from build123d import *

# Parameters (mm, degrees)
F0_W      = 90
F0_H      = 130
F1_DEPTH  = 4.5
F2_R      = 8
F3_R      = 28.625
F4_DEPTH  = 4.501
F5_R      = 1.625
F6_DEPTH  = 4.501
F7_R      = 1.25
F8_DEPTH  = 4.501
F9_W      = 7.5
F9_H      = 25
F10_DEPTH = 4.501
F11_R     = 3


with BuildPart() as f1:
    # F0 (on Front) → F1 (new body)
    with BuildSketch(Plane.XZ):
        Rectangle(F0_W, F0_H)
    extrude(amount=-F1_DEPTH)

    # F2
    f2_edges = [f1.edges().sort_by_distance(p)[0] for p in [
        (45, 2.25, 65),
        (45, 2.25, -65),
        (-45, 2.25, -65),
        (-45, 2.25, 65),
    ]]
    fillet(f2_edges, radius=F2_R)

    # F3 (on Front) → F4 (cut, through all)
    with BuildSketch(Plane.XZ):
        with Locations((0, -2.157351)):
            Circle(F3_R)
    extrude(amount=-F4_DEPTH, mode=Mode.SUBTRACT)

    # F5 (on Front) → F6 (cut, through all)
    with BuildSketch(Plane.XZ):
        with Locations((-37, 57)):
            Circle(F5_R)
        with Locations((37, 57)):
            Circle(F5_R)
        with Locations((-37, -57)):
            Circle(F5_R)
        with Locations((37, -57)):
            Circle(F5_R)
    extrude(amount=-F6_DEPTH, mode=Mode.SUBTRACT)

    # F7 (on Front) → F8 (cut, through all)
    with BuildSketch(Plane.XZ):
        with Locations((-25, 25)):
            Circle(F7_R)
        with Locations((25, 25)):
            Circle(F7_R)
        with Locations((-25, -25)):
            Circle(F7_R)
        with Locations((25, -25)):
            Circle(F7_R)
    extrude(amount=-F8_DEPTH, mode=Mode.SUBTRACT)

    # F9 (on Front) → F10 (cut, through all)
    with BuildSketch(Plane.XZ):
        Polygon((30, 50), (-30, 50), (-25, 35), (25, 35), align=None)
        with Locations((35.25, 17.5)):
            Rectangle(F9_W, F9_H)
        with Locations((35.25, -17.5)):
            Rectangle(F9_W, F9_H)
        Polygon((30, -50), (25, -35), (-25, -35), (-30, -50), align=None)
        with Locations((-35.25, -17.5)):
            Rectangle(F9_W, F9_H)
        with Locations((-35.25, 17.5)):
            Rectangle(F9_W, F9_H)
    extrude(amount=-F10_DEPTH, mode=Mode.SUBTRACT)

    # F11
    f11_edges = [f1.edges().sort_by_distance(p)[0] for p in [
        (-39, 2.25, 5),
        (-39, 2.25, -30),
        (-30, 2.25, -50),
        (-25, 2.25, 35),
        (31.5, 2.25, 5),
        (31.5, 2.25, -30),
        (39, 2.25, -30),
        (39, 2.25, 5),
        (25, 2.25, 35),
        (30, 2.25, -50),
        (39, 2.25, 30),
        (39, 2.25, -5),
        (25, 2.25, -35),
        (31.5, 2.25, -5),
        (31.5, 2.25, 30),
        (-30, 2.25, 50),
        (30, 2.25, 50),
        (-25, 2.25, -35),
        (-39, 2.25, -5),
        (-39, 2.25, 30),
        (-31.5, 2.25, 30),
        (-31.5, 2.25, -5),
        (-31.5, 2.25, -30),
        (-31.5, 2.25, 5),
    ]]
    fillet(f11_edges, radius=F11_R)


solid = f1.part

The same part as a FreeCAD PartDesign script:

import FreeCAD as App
import Part
import Sketcher


def edges_at(feature, points):
    """Names of the edges that pass closest to the given points."""
    edges = feature.Shape.Edges
    near = lambda p: min(range(len(edges)), key=lambda i: edges[i].distToShape(Part.Vertex(*p))[0])
    return sorted({f"Edge{near(p) + 1}" for p in points})


def add_polygon(sketch, points):
    """Adds a closed chain of lines whose ends are joined by coincident constraints."""
    first, n = sketch.GeometryCount, len(points)
    for a, b in zip(points, points[1:] + points[:1]):
        sketch.addGeometry(Part.LineSegment(App.Vector(*a, 0), App.Vector(*b, 0)), False)
    for i in range(n):
        sketch.addConstraint(Sketcher.Constraint("Coincident", first + i, 2, first + (i + 1) % n, 1))

doc = App.newDocument("Part")
body = doc.addObject("PartDesign::Body", "Body")

# Sketch on XZ plane
sketch1 = body.newObject("Sketcher::SketchObject", "Sketch")
sketch1.AttachmentSupport = (doc.getObject("XZ_Plane"), [""])
sketch1.MapMode = "FlatFace"
add_polygon(sketch1, [(-45, 65), (-45, -65), (45, -65), (45, 65)])  # lines 0-3
sketch1.addConstraint(Sketcher.Constraint("Vertical", 0))
sketch1.addConstraint(Sketcher.Constraint("Horizontal", 1))
sketch1.addConstraint(Sketcher.Constraint("Vertical", 2))
sketch1.addConstraint(Sketcher.Constraint("Horizontal", 3))
sketch1.addConstraint(Sketcher.Constraint("Symmetric", 0, 2, 2, 2, -1, 1))
sketch1.addConstraint(Sketcher.Constraint("DistanceX", 1, 1, 1, 2, 90.0))
sketch1.addConstraint(Sketcher.Constraint("DistanceY", 0, 2, 0, 1, 130.0))
pad1 = body.newObject("PartDesign::Pad", "Pad")
pad1.Profile = sketch1
pad1.Length = 4.5
pad1.Reversed = True
doc.recompute()

fillet = body.newObject("PartDesign::Fillet", "Fillet")
fillet.Base = (pad1, edges_at(pad1, [
    (45, 2.25, 65),
    (45, 2.25, -65),
    (-45, 2.25, -65),
    (-45, 2.25, 65),
]))
fillet.Radius = 8

# Sketch on XZ plane
sketch2 = body.newObject("Sketcher::SketchObject", "Sketch001")
sketch2.AttachmentSupport = (doc.getObject("XZ_Plane"), [""])
sketch2.MapMode = "FlatFace"
sketch2.addGeometry(Part.Circle(App.Vector(0, -2, 0), App.Vector(0, 0, 1), 29), False)
sketch2.addConstraint(Sketcher.Constraint("PointOnObject", 0, 3, -2))
sketch2.addConstraint(Sketcher.Constraint("Diameter", 0, 57.25))
sketch2.addConstraint(Sketcher.Constraint("DistanceY", 0, 3, -1, 1, 2.157351))
pocket1 = body.newObject("PartDesign::Pocket", "Pocket")
pocket1.Profile = sketch2
pocket1.Type = "ThroughAll"

# Sketch on XZ plane
sketch3 = body.newObject("Sketcher::SketchObject", "Sketch002")
sketch3.AttachmentSupport = (doc.getObject("XZ_Plane"), [""])
sketch3.MapMode = "FlatFace"
sketch3.addGeometry(Part.Circle(App.Vector(-37, 57, 0), App.Vector(0, 0, 1), 1.6), False)
sketch3.addGeometry(Part.Circle(App.Vector(37, 57, 0), App.Vector(0, 0, 1), 1.6), False)
sketch3.addGeometry(Part.Circle(App.Vector(-37, -57, 0), App.Vector(0, 0, 1), 1.6), False)
sketch3.addGeometry(Part.Circle(App.Vector(37, -57, 0), App.Vector(0, 0, 1), 1.6), False)
sketch3.addConstraint(Sketcher.Constraint("Equal", 0, 1))
sketch3.addConstraint(Sketcher.Constraint("Equal", 1, 2))
sketch3.addConstraint(Sketcher.Constraint("Equal", 2, 3))
sketch3.addConstraint(Sketcher.Constraint("Symmetric", 1, 3, 2, 3, -1, 1))
sketch3.addConstraint(Sketcher.Constraint("Symmetric", 0, 3, 3, 3, -1, 1))
sketch3.addConstraint(Sketcher.Constraint("Symmetric", 0, 3, 1, 3, -2))
sketch3.addConstraint(Sketcher.Constraint("Diameter", 0, 3.25))
sketch3.addConstraint(Sketcher.Constraint("DistanceX", 0, 3, -1, 1, 37.0))
sketch3.addConstraint(Sketcher.Constraint("DistanceY", -1, 1, 0, 3, 57.0))
pocket2 = body.newObject("PartDesign::Pocket", "Pocket001")
pocket2.Profile = sketch3
pocket2.Type = "ThroughAll"

# Sketch on XZ plane
sketch4 = body.newObject("Sketcher::SketchObject", "Sketch003")
sketch4.AttachmentSupport = (doc.getObject("XZ_Plane"), [""])
sketch4.MapMode = "FlatFace"
sketch4.addGeometry(Part.Circle(App.Vector(-25, 25, 0), App.Vector(0, 0, 1), 1.2), False)
sketch4.addGeometry(Part.Circle(App.Vector(25, 25, 0), App.Vector(0, 0, 1), 1.2), False)
sketch4.addGeometry(Part.Circle(App.Vector(-25, -25, 0), App.Vector(0, 0, 1), 1.2), False)
sketch4.addGeometry(Part.Circle(App.Vector(25, -25, 0), App.Vector(0, 0, 1), 1.2), False)
sketch4.addConstraint(Sketcher.Constraint("Equal", 0, 1))
sketch4.addConstraint(Sketcher.Constraint("Equal", 1, 2))
sketch4.addConstraint(Sketcher.Constraint("Equal", 2, 3))
sketch4.addConstraint(Sketcher.Constraint("Symmetric", 1, 3, 2, 3, -1, 1))
sketch4.addConstraint(Sketcher.Constraint("Symmetric", 0, 3, 3, 3, -1, 1))
sketch4.addConstraint(Sketcher.Constraint("Symmetric", 0, 3, 1, 3, -2))
sketch4.addConstraint(Sketcher.Constraint("Diameter", 0, 2.5))
sketch4.addConstraint(Sketcher.Constraint("DistanceX", 0, 3, -1, 1, 25.0))
sketch4.addConstraint(Sketcher.Constraint("DistanceY", -1, 1, 0, 3, 25.0))
pocket3 = body.newObject("PartDesign::Pocket", "Pocket002")
pocket3.Profile = sketch4
pocket3.Type = "ThroughAll"

# Sketch on XZ plane
sketch5 = body.newObject("Sketcher::SketchObject", "Sketch004")
sketch5.AttachmentSupport = (doc.getObject("XZ_Plane"), [""])
sketch5.MapMode = "FlatFace"
add_polygon(sketch5, [(30, 50), (-30, 50), (-25, 35), (25, 35)])  # lines 0-3
add_polygon(sketch5, [(32, 30), (32, 5), (39, 5), (39, 30)])  # lines 4-7
add_polygon(sketch5, [(32, -5), (32, -30), (39, -30), (39, -5)])  # lines 8-11
add_polygon(sketch5, [(30, -50), (25, -35), (-25, -35), (-30, -50)])  # lines 12-15
add_polygon(sketch5, [(-39, -5), (-39, -30), (-32, -30), (-32, -5)])  # lines 16-19
add_polygon(sketch5, [(-39, 30), (-39, 5), (-32, 5), (-32, 30)])  # lines 20-23
sketch5.addConstraint(Sketcher.Constraint("Horizontal", 0))
sketch5.addConstraint(Sketcher.Constraint("Horizontal", 2))
sketch5.addConstraint(Sketcher.Constraint("Vertical", 4))
sketch5.addConstraint(Sketcher.Constraint("Horizontal", 5))
sketch5.addConstraint(Sketcher.Constraint("Vertical", 6))
sketch5.addConstraint(Sketcher.Constraint("Horizontal", 7))
sketch5.addConstraint(Sketcher.Constraint("Vertical", 8))
sketch5.addConstraint(Sketcher.Constraint("Horizontal", 9))
sketch5.addConstraint(Sketcher.Constraint("Vertical", 10))
sketch5.addConstraint(Sketcher.Constraint("Horizontal", 11))
sketch5.addConstraint(Sketcher.Constraint("Horizontal", 13))
sketch5.addConstraint(Sketcher.Constraint("Horizontal", 15))
sketch5.addConstraint(Sketcher.Constraint("Vertical", 16))
sketch5.addConstraint(Sketcher.Constraint("Horizontal", 17))
sketch5.addConstraint(Sketcher.Constraint("Vertical", 18))
sketch5.addConstraint(Sketcher.Constraint("Horizontal", 19))
sketch5.addConstraint(Sketcher.Constraint("Vertical", 20))
sketch5.addConstraint(Sketcher.Constraint("Horizontal", 21))
sketch5.addConstraint(Sketcher.Constraint("Vertical", 22))
sketch5.addConstraint(Sketcher.Constraint("Horizontal", 23))
sketch5.addConstraint(Sketcher.Constraint("Symmetric", 1, 2, 12, 2, -1, 1))
sketch5.addConstraint(Sketcher.Constraint("Symmetric", 3, 2, 14, 2, -1, 1))
sketch5.addConstraint(Sketcher.Constraint("Symmetric", 6, 2, 16, 2, -1, 1))
sketch5.addConstraint(Sketcher.Constraint("Symmetric", 4, 2, 18, 2, -1, 1))
sketch5.addConstraint(Sketcher.Constraint("Symmetric", 10, 2, 20, 2, -1, 1))
sketch5.addConstraint(Sketcher.Constraint("Symmetric", 8, 2, 22, 2, -1, 1))
sketch5.addConstraint(Sketcher.Constraint("Symmetric", 9, 2, 16, 2, -2))
sketch5.addConstraint(Sketcher.Constraint("Symmetric", 11, 2, 18, 2, -2))
sketch5.addConstraint(Sketcher.Constraint("Parallel", 1, 12))
sketch5.addConstraint(Sketcher.Constraint("Parallel", 3, 14))
sketch5.addConstraint(Sketcher.Constraint("Vertical", 2, 2, 12, 2))
sketch5.addConstraint(Sketcher.Constraint("Vertical", 0, 2, 14, 2))
sketch5.addConstraint(Sketcher.Constraint("DistanceX", 0, 2, 0, 1, 60.0))
sketch5.addConstraint(Sketcher.Constraint("DistanceX", 2, 1, 2, 2, 50.0))
sketch5.addConstraint(Sketcher.Constraint("DistanceY", 4, 2, 4, 1, 25.0))
sketch5.addConstraint(Sketcher.Constraint("DistanceX", 5, 1, 5, 2, 7.5))
sketch5.addConstraint(Sketcher.Constraint("DistanceY", -1, 1, 0, 2, 50.0))
sketch5.addConstraint(Sketcher.Constraint("DistanceY", -1, 1, 1, 2, 35.0))
sketch5.addConstraint(Sketcher.Constraint("DistanceY", -1, 1, 4, 2, 5.0))
sketch5.addConstraint(Sketcher.Constraint("DistanceX", -1, 1, 5, 2, 39.0))
pocket4 = body.newObject("PartDesign::Pocket", "Pocket003")
pocket4.Profile = sketch5
pocket4.Type = "ThroughAll"
doc.recompute()

fillet2 = body.newObject("PartDesign::Fillet", "Fillet001")
fillet2.Base = (pocket4, edges_at(pocket4, [
    (-39, 2.25, 5),
    (-39, 2.25, -30),
    (-30, 2.25, -50),
    (-25, 2.25, 35),
    (31.5, 2.25, 5),
    (31.5, 2.25, -30),
    (39, 2.25, -30),
    (39, 2.25, 5),
    (25, 2.25, 35),
    (30, 2.25, -50),
    (39, 2.25, 30),
    (39, 2.25, -5),
    (25, 2.25, -35),
    (31.5, 2.25, -5),
    (31.5, 2.25, 30),
    (-30, 2.25, 50),
    (30, 2.25, 50),
    (-25, 2.25, -35),
    (-39, 2.25, -5),
    (-39, 2.25, 30),
    (-31.5, 2.25, 30),
    (-31.5, 2.25, -5),
    (-31.5, 2.25, -30),
    (-31.5, 2.25, 5),
]))
fillet2.Radius = 3

doc.recompute()
